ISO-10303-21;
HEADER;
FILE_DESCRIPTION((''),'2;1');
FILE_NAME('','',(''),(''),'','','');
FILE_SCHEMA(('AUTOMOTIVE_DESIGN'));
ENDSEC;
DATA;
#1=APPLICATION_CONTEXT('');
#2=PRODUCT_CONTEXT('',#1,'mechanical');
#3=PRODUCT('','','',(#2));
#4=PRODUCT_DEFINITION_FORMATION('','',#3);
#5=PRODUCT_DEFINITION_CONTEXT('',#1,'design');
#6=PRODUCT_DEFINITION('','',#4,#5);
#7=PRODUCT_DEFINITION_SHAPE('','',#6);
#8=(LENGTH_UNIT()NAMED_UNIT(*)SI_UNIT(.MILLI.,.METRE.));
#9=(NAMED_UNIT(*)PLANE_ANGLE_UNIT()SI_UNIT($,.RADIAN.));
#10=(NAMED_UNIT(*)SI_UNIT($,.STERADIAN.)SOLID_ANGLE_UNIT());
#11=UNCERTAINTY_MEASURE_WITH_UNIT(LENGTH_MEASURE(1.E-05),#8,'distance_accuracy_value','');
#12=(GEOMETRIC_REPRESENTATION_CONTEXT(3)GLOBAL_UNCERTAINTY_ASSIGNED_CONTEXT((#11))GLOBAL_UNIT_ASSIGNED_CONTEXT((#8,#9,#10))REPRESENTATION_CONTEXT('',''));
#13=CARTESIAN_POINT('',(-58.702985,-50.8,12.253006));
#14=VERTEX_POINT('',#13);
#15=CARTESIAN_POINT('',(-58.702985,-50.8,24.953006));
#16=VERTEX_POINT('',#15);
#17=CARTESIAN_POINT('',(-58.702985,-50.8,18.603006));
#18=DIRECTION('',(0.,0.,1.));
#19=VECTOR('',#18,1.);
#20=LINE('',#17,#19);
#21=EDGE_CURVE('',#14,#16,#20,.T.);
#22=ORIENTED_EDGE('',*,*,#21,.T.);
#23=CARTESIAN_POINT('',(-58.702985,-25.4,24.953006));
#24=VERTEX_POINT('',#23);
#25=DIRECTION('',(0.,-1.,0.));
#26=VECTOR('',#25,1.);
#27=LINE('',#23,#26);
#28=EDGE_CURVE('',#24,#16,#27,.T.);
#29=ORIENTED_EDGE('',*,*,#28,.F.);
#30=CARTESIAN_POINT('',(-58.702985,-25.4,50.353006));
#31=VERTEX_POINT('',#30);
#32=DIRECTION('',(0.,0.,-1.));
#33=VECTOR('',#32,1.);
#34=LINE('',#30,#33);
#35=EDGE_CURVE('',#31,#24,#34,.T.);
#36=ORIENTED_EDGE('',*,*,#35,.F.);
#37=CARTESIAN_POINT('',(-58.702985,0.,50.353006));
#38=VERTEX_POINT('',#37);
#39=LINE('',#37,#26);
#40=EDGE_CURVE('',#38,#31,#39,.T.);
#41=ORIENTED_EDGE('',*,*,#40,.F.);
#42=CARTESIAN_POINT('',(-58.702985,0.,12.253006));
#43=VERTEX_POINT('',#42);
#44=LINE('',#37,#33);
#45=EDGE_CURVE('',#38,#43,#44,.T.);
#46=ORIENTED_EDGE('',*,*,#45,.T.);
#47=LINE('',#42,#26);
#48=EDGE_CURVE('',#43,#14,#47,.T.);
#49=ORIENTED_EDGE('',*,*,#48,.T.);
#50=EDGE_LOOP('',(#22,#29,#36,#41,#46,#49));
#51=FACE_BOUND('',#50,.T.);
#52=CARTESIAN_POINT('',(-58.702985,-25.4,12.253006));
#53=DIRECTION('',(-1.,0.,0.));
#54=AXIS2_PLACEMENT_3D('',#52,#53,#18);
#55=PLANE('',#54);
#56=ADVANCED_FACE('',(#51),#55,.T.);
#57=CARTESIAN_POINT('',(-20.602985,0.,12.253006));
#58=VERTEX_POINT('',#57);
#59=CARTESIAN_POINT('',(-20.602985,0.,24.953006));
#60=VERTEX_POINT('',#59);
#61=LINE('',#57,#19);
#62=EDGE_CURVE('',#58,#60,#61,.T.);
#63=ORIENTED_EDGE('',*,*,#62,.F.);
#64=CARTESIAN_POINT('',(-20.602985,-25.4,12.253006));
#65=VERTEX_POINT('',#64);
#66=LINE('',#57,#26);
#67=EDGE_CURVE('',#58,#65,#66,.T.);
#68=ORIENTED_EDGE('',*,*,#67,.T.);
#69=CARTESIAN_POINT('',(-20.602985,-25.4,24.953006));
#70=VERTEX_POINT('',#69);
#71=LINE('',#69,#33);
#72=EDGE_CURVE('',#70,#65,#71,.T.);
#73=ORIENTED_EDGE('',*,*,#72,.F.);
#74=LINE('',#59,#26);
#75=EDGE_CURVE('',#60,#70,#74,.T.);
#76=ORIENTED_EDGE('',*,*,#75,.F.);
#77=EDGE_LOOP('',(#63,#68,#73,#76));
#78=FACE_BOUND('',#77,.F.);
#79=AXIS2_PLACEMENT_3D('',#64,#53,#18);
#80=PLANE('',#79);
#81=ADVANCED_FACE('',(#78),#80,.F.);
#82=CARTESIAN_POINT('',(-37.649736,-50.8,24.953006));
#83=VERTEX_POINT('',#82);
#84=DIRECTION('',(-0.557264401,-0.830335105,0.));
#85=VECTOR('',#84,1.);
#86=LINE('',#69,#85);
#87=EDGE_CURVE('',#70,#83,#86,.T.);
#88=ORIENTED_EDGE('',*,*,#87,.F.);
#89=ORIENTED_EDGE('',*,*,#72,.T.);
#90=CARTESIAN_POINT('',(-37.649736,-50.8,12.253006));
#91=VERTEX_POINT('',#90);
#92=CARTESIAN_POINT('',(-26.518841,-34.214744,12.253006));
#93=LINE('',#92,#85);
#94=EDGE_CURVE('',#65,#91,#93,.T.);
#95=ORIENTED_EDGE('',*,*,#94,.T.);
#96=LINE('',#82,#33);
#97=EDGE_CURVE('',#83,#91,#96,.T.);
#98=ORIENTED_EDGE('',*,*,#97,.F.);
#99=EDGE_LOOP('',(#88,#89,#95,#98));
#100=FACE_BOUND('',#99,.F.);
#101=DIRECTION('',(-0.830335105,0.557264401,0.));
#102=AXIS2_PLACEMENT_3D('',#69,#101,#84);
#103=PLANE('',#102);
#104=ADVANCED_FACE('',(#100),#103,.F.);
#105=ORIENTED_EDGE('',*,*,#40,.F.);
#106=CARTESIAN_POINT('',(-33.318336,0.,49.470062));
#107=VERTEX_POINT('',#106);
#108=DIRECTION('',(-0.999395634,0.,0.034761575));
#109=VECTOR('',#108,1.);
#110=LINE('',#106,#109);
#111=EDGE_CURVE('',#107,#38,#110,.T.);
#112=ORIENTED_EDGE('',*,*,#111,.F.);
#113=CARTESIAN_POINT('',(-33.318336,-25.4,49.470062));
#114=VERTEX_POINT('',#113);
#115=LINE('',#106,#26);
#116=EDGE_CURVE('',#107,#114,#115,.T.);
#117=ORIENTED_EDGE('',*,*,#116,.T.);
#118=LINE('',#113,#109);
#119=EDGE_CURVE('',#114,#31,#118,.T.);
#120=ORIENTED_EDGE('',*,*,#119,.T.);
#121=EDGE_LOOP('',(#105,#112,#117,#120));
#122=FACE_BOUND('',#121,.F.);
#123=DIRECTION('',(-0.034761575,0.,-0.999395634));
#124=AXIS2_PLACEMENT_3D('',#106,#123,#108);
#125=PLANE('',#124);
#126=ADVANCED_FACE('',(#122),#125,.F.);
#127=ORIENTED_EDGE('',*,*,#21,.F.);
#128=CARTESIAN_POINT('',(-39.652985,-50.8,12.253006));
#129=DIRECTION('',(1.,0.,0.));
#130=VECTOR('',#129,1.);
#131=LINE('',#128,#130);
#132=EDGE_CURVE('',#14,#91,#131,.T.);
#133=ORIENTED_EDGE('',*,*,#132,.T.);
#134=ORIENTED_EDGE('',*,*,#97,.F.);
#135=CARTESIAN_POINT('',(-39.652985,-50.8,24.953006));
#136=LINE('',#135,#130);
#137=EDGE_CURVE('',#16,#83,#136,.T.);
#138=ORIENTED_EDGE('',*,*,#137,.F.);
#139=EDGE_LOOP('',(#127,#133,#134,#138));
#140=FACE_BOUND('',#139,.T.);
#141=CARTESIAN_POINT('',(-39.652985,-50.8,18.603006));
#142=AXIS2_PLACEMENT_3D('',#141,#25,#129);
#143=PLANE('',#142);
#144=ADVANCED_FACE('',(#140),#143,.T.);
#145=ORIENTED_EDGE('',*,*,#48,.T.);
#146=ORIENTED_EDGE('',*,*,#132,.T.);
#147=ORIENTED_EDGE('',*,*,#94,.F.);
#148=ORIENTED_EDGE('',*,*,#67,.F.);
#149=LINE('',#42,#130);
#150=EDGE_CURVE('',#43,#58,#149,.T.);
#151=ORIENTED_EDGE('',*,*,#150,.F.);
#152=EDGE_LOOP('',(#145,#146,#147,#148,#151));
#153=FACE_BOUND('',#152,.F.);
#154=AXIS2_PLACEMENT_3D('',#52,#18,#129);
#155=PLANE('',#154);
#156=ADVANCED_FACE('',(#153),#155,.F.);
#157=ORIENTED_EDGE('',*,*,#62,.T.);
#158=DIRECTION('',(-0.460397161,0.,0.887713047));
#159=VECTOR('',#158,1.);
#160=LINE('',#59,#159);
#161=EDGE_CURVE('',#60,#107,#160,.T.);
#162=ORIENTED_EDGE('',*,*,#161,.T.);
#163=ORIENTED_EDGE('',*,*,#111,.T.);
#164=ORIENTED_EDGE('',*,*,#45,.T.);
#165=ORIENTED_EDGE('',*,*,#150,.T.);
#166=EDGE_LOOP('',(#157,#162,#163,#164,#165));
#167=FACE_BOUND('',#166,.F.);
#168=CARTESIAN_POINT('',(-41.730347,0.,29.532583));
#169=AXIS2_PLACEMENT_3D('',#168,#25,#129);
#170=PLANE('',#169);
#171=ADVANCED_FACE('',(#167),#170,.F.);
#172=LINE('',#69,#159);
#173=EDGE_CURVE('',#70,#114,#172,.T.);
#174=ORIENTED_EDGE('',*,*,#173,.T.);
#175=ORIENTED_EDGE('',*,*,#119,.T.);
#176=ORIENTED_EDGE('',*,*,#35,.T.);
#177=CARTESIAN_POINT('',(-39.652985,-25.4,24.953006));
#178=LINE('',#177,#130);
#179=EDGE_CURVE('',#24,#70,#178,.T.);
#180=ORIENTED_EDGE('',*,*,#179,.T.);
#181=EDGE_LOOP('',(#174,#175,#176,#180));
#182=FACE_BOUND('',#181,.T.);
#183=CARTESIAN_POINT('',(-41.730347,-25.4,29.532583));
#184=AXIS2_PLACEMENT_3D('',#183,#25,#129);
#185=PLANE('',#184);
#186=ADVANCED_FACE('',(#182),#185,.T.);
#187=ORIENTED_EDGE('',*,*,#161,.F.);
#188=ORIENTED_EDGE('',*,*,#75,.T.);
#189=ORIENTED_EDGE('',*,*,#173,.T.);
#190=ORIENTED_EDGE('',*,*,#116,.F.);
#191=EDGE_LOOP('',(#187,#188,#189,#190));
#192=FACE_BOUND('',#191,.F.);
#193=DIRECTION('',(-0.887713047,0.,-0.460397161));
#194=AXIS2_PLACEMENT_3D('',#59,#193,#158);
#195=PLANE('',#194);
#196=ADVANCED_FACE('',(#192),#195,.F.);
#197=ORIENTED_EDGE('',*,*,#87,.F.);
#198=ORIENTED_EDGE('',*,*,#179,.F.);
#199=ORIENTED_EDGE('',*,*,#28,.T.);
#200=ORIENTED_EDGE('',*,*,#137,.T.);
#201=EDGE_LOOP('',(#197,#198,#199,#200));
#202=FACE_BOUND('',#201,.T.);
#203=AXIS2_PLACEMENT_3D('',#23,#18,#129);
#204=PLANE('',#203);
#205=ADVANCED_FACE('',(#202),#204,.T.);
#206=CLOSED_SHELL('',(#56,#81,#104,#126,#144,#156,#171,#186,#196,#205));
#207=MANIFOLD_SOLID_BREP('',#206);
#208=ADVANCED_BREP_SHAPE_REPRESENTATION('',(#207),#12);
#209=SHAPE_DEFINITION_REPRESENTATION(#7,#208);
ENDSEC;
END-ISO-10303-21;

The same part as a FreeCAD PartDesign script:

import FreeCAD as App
import Part
import Sketcher
Q = App.Units.Quantity

doc = App.newDocument("Part")
params = doc.addObject("Spreadsheet::Sheet", "Params")
for row, (alias, value) in enumerate([
    ("sketch1_length", "1 in"),
    ("sketch1_width", "1.5 in"),
    ("sketch1_height", "0.5 in"),
    ("pad1_length", "1 in"),
    ("sketch2_width", "1.5 in"),
    ("sketch2_height", "0.5 in"),
    ("pad2_length", "1 in"),
    ("sketch3_height", "1 in"),
    ("pocket1_length", "1 in"),
], start=1):
    params.set(f"A{row}", alias)
    params.set(f"B{row}", "=" + value)
    params.setAlias(f"B{row}", alias)

body = doc.addObject("PartDesign::Body", "Body")

sketch1 = body.newObject("Sketcher::SketchObject", "Sketch")
sketch1.AttachmentSupport = (doc.getObject("XZ_Plane"), [""])
sketch1.MapMode = "FlatFace"
sketch1.addGeometry([
    Part.LineSegment(App.Vector(-33, 49, 0), App.Vector(-59, 50, 0)),
    Part.LineSegment(App.Vector(-59, 50, 0), App.Vector(-59, 12, 0)),
    Part.LineSegment(App.Vector(-59, 12, 0), App.Vector(-21, 12, 0)),
    Part.LineSegment(App.Vector(-21, 12, 0), App.Vector(-21, 25, 0)),
    Part.LineSegment(App.Vector(-21, 25, 0), App.Vector(-33, 49, 0)),
], False)
sketch1.addConstraint([
    Sketcher.Constraint("Coincident", 0, 2, 1, 1),
    Sketcher.Constraint("Coincident", 1, 2, 2, 1),
    Sketcher.Constraint("Coincident", 2, 2, 3, 1),
    Sketcher.Constraint("Coincident", 3, 2, 4, 1),
    Sketcher.Constraint("Coincident", 4, 2, 0, 1),
    Sketcher.Constraint("Vertical", 1),
    Sketcher.Constraint("Horizontal", 2),
    Sketcher.Constraint("Vertical", 3),
    Sketcher.Constraint("Equal", 2, 1),
    Sketcher.Constraint("Distance", 0, Q("1 in")),
    Sketcher.Constraint("DistanceX", 2, 1, 2, 2, Q("1.5 in")),
    Sketcher.Constraint("DistanceY", 3, 1, 3, 2, Q("0.5 in")),
    Sketcher.Constraint("Distance", 4, 27.618222),
    Sketcher.Constraint("DistanceX", 0, 2, -1, 1, 58.702985),
    Sketcher.Constraint("DistanceY", -1, 1, 0, 2, 50.353006),
])
sketch1.setExpression("Constraints[9]", "Params.sketch1_length")
sketch1.setExpression("Constraints[10]", "Params.sketch1_width")
sketch1.setExpression("Constraints[11]", "Params.sketch1_height")
pad1 = body.newObject("PartDesign::Pad", "Pad")
pad1.Profile = sketch1
pad1.setExpression("Length", "Params.pad1_length")

sketch2 = body.newObject("Sketcher::SketchObject", "Sketch001")
sketch2.AttachmentSupport = (doc.getObject("XZ_Plane"), [""])
sketch2.MapMode = "FlatFace"
sketch2.AttachmentOffset = App.Placement(App.Vector(0, 0, 1 * 25.4), App.Rotation())
sketch2.addGeometry([
    Part.LineSegment(App.Vector(-59, 25, 0), App.Vector(-59, 12, 0)),
    Part.LineSegment(App.Vector(-59, 12, 0), App.Vector(-21, 12, 0)),
    Part.LineSegment(App.Vector(-21, 12, 0), App.Vector(-21, 25, 0)),
    Part.LineSegment(App.Vector(-21, 25, 0), App.Vector(-59, 25, 0)),
], False)
sketch2.addConstraint([
    Sketcher.Constraint("Coincident", 0, 2, 1, 1),
    Sketcher.Constraint("Coincident", 1, 2, 2, 1),
    Sketcher.Constraint("Coincident", 2, 2, 3, 1),
    Sketcher.Constraint("Coincident", 3, 2, 0, 1),
    Sketcher.Constraint("Vertical", 0),
    Sketcher.Constraint("Horizontal", 1),
    Sketcher.Constraint("Vertical", 2),
    Sketcher.Constraint("Horizontal", 3),
    Sketcher.Constraint("DistanceX", 1, 1, 1, 2, Q("1.5 in")),
    Sketcher.Constraint("DistanceY", 0, 2, 0, 1, Q("0.5 in")),
    Sketcher.Constraint("DistanceX", 0, 2, -1, 1, 58.702985),
    Sketcher.Constraint("DistanceY", -1, 1, 0, 2, 12.253006),
])
sketch2.setExpression("Constraints[8]", "Params.sketch2_width")
sketch2.setExpression("Constraints[9]", "Params.sketch2_height")
pad2 = body.newObject("PartDesign::Pad", "Pad001")
pad2.Profile = sketch2
pad2.setExpression("Length", "Params.pad2_length")

sketch3 = body.newObject("Sketcher::SketchObject", "Sketch002")
sketch3.AttachmentSupport = (doc.getObject("XY_Plane"), [""])
sketch3.MapMode = "FlatFace"
sketch3.AttachmentOffset = App.Placement(App.Vector(0, 0, 24.953006), App.Rotation())
sketch3.addGeometry([
    Part.LineSegment(App.Vector(-21, -51, 0), App.Vector(-21, -25, 0)),
    Part.LineSegment(App.Vector(-21, -25, 0), App.Vector(-38, -51, 0)),
    Part.LineSegment(App.Vector(-38, -51, 0), App.Vector(-21, -51, 0)),
], False)
sketch3.addConstraint([
    Sketcher.Constraint("Coincident", 0, 2, 1, 1),
    Sketcher.Constraint("Coincident", 1, 2, 2, 1),
    Sketcher.Constraint("Coincident", 2, 2, 0, 1),
    Sketcher.Constraint("Vertical", 0),
    Sketcher.Constraint("Horizontal", 2),
    Sketcher.Constraint("DistanceY", 0, 1, 0, 2, Q("1 in")),
    Sketcher.Constraint("DistanceY", 0, 2, -1, 1, Q("1 in")),
    Sketcher.Constraint("DistanceX", 2, 1, 2, 2, 17.046751),
    Sketcher.Constraint("DistanceX", 0, 2, -1, 1, 20.602985),
])
sketch3.setExpression("Constraints[5]", "Params.sketch3_height")
pocket1 = body.newObject("PartDesign::Pocket", "Pocket")
pocket1.Profile = sketch3
pocket1.setExpression("Length", "Params.pocket1_length")

doc.recompute()
